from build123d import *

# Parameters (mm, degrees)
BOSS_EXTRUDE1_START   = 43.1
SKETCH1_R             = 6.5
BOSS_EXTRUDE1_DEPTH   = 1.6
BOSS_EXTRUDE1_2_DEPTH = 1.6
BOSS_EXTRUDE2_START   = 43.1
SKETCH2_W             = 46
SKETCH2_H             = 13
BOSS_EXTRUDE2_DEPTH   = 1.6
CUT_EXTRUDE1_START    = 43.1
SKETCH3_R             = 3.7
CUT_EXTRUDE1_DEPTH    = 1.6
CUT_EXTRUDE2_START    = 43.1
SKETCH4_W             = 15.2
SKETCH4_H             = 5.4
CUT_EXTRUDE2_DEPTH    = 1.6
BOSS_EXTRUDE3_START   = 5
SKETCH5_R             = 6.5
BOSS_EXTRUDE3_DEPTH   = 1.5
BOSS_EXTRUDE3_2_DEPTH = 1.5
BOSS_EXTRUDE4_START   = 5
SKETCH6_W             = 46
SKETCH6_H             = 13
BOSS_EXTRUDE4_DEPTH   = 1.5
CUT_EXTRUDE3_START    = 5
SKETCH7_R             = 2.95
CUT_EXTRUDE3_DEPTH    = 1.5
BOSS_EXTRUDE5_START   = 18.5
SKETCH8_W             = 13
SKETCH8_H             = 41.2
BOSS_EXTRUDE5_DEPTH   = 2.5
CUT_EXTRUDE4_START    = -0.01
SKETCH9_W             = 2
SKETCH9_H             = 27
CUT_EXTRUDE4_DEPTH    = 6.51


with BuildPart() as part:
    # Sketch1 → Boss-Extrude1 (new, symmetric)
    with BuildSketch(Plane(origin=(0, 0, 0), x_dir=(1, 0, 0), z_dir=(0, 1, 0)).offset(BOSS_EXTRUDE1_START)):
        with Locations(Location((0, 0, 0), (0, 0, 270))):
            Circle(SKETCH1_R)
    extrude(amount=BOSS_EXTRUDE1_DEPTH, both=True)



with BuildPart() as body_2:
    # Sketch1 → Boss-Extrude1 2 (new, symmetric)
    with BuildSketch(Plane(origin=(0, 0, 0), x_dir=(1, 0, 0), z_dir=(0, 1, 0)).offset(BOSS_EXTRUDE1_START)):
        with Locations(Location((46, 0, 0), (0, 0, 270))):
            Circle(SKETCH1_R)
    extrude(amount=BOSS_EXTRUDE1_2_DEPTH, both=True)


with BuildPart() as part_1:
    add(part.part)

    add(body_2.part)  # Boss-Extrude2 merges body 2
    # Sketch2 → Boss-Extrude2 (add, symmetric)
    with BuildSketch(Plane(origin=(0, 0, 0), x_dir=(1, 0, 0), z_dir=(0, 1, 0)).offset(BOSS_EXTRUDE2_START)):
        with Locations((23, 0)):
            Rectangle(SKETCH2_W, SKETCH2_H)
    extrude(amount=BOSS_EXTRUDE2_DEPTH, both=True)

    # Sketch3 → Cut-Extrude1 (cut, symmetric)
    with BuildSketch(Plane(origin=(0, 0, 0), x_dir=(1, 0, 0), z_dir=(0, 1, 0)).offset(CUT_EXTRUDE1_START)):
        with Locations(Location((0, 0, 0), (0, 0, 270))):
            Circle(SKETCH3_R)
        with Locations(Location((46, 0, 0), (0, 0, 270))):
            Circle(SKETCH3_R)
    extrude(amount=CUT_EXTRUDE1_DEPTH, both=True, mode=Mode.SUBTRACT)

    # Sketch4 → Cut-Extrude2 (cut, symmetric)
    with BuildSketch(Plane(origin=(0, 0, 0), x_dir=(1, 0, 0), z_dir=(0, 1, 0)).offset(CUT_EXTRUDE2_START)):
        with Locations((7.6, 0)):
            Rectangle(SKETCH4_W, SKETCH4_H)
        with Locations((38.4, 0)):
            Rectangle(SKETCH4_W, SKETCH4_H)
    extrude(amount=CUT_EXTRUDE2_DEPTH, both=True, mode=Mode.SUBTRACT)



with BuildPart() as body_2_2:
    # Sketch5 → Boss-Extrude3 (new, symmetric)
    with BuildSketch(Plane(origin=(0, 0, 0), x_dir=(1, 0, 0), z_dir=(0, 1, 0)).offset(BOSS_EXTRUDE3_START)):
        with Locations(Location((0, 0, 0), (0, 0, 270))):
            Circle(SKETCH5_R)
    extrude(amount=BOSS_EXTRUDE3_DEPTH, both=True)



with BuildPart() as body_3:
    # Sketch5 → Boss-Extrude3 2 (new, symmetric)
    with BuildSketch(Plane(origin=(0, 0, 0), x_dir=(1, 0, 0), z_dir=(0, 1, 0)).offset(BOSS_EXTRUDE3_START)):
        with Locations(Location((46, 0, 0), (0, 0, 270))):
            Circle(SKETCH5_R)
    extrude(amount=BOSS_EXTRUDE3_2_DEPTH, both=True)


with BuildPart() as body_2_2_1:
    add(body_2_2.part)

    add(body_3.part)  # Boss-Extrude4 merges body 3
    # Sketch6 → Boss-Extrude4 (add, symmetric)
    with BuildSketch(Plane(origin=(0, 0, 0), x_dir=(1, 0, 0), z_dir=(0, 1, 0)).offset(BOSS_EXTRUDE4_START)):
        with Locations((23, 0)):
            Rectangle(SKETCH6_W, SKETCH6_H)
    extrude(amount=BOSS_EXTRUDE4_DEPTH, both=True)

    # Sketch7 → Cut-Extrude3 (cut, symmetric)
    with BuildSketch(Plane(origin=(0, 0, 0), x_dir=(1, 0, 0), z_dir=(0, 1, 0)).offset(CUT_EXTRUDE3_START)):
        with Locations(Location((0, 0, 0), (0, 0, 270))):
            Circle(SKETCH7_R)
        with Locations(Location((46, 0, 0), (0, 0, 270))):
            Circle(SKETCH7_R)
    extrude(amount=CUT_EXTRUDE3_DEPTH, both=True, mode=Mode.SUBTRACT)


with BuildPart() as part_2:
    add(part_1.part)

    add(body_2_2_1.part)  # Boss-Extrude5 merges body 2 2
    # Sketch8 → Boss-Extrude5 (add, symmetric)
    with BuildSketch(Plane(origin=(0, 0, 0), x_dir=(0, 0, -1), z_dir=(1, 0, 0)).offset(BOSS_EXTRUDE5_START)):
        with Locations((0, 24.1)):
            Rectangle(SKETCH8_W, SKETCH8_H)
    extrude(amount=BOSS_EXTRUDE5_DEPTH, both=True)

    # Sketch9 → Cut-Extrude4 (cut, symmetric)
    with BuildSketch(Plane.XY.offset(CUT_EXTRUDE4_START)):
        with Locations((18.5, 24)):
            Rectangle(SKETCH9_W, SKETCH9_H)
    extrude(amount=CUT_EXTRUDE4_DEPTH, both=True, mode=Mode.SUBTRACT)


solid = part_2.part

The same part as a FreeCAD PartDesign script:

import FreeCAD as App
import Part
import Sketcher

V = App.Vector
Q = App.Units.Quantity

doc = App.newDocument("Part")
body = doc.addObject("PartDesign::Body", "Body")

sketch1 = body.newObject("Sketcher::SketchObject", "Sketch")
sketch1.AttachmentSupport = (doc.getObject("XZ_Plane"), [""])
sketch1.MapMode = "FlatFace"
sketch1.AttachmentOffset = App.Placement(V(0, 0, -43.1), App.Rotation())
sketch1.addGeometry(Part.Circle(V(0, 0, 0), V(0, 0, 1), 6), False)
sketch1.addConstraint(Sketcher.Constraint("Coincident", 0, 3, -1, 1))
sketch1.addConstraint(Sketcher.Constraint("Diameter", 0, Q("13 mm")))
pad1 = body.newObject("PartDesign::Pad", "Pad")
pad1.Profile = sketch1
pad1.Length = 3.2
pad1.Midplane = True
body2 = doc.addObject("PartDesign::Body", "Body001")

sketch2 = body2.newObject("Sketcher::SketchObject", "Sketch001")
sketch2.AttachmentSupport = (doc.getObject("XZ_Plane001"), [""])
sketch2.MapMode = "FlatFace"
sketch2.AttachmentOffset = App.Placement(V(0, 0, -43.1), App.Rotation())
sketch2.addGeometry(Part.Circle(V(46, 0, 0), V(0, 0, 1), 6), False)
sketch2.addConstraint(Sketcher.Constraint("PointOnObject", 0, 3, -1))
sketch2.addConstraint(Sketcher.Constraint("Diameter", 0, Q("13 mm")))
sketch2.addConstraint(Sketcher.Constraint("DistanceX", -1, 1, 0, 3, Q("46 mm")))
pad2 = body2.newObject("PartDesign::Pad", "Pad001")
pad2.Profile = sketch2
pad2.Length = 3.2
pad2.Midplane = True
body.AllowCompound = True
doc.recompute()

boolean = body.newObject("PartDesign::Boolean", "Boolean")
boolean.Type = "Fuse"
boolean.addObjects([body2])

sketch3 = body.newObject("Sketcher::SketchObject", "Sketch002")
sketch3.AttachmentSupport = (doc.getObject("XZ_Plane"), [""])
sketch3.MapMode = "FlatFace"
sketch3.AttachmentOffset = App.Placement(V(0, 0, -43.1), App.Rotation())
sketch3.addGeometry(Part.LineSegment(V(0, -6, 0), V(0, 6, 0)), False)
sketch3.addGeometry(Part.LineSegment(V(0, 6, 0), V(46, 6, 0)), False)
sketch3.addGeometry(Part.LineSegment(V(46, 6, 0), V(46, -6, 0)), False)
sketch3.addGeometry(Part.LineSegment(V(46, -6, 0), V(0, -6, 0)), False)
sketch3.addConstraint(Sketcher.Constraint("Coincident", 0, 2, 1, 1))
sketch3.addConstraint(Sketcher.Constraint("Coincident", 1, 2, 2, 1))
sketch3.addConstraint(Sketcher.Constraint("Coincident", 2, 2, 3, 1))
sketch3.addConstraint(Sketcher.Constraint("Coincident", 3, 2, 0, 1))
sketch3.addConstraint(Sketcher.Constraint("Vertical", 0))
sketch3.addConstraint(Sketcher.Constraint("Horizontal", 1))
sketch3.addConstraint(Sketcher.Constraint("Vertical", 2))
sketch3.addConstraint(Sketcher.Constraint("Horizontal", 3))
sketch3.addConstraint(Sketcher.Constraint("Symmetric", 0, 2, 3, 2, -1, 1))
sketch3.addConstraint(Sketcher.Constraint("DistanceX", 1, 1, 1, 2, Q("46 mm")))
sketch3.addConstraint(Sketcher.Constraint("DistanceY", 0, 1, 0, 2, Q("13 mm")))
pad3 = body.newObject("PartDesign::Pad", "Pad002")
pad3.Profile = sketch3
pad3.Length = 3.2
pad3.Midplane = True

sketch4 = body.newObject("Sketcher::SketchObject", "Sketch003")
sketch4.AttachmentSupport = (doc.getObject("XZ_Plane"), [""])
sketch4.MapMode = "FlatFace"
sketch4.AttachmentOffset = App.Placement(V(0, 0, -43.1), App.Rotation())
sketch4.addGeometry(Part.Circle(V(0, 0, 0), V(0, 0, 1), 3.7), False)
sketch4.addGeometry(Part.Circle(V(46, 0, 0), V(0, 0, 1), 3.7), False)
sketch4.addConstraint(Sketcher.Constraint("Coincident", 0, 3, -1, 1))
sketch4.addConstraint(Sketcher.Constraint("Equal", 0, 1))
sketch4.addConstraint(Sketcher.Constraint("PointOnObject", 1, 3, -1))
sketch4.addConstraint(Sketcher.Constraint("Diameter", 0, Q("7.4 mm")))
sketch4.addConstraint(Sketcher.Constraint("DistanceX", -1, 1, 1, 3, Q("46 mm")))
pocket1 = body.newObject("PartDesign::Pocket", "Pocket")
pocket1.Profile = sketch4
pocket1.Length = 3.2
pocket1.Midplane = True

sketch5 = body.newObject("Sketcher::SketchObject", "Sketch004")
sketch5.AttachmentSupport = (doc.getObject("XZ_Plane"), [""])
sketch5.MapMode = "FlatFace"
sketch5.AttachmentOffset = App.Placement(V(0, 0, -43.1), App.Rotation())
sketch5.addGeometry(Part.LineSegment(V(0, -3, 0), V(0, 3, 0)), False)
sketch5.addGeometry(Part.LineSegment(V(0, 3, 0), V(15, 3, 0)), False)
sketch5.addGeometry(Part.LineSegment(V(15, 3, 0), V(15, -3, 0)), False)
sketch5.addGeometry(Part.LineSegment(V(15, -3, 0), V(0, -3, 0)), False)
sketch5.addGeometry(Part.LineSegment(V(31, -3, 0), V(31, 3, 0)), False)
sketch5.addGeometry(Part.LineSegment(V(31, 3, 0), V(46, 3, 0)), False)
sketch5.addGeometry(Part.LineSegment(V(46, 3, 0), V(46, -3, 0)), False)
sketch5.addGeometry(Part.LineSegment(V(46, -3, 0), V(31, -3, 0)), False)
sketch5.addConstraint(Sketcher.Constraint("Coincident", 0, 2, 1, 1))
sketch5.addConstraint(Sketcher.Constraint("Coincident", 1, 2, 2, 1))
sketch5.addConstraint(Sketcher.Constraint("Coincident", 2, 2, 3, 1))
sketch5.addConstraint(Sketcher.Constraint("Coincident", 3, 2, 0, 1))
sketch5.addConstraint(Sketcher.Constraint("Coincident", 4, 2, 5, 1))
sketch5.addConstraint(Sketcher.Constraint("Coincident", 5, 2, 6, 1))
sketch5.addConstraint(Sketcher.Constraint("Coincident", 6, 2, 7, 1))
sketch5.addConstraint(Sketcher.Constraint("Coincident", 7, 2, 4, 1))
sketch5.addConstraint(Sketcher.Constraint("Vertical", 0))
sketch5.addConstraint(Sketcher.Constraint("Horizontal", 1))
sketch5.addConstraint(Sketcher.Constraint("Vertical", 2))
sketch5.addConstraint(Sketcher.Constraint("Horizontal", 3))
sketch5.addConstraint(Sketcher.Constraint("Vertical", 4))
sketch5.addConstraint(Sketcher.Constraint("Horizontal", 5))
sketch5.addConstraint(Sketcher.Constraint("Vertical", 6))
sketch5.addConstraint(Sketcher.Constraint("Horizontal", 7))
sketch5.addConstraint(Sketcher.Constraint("Symmetric", 0, 2, 3, 2, -1, 1))
sketch5.addConstraint(Sketcher.Constraint("Horizontal", 1, 2, 4, 2))
sketch5.addConstraint(Sketcher.Constraint("Horizontal", 3, 2, 6, 2))
sketch5.addConstraint(Sketcher.Constraint("Equal", 3, 5))
sketch5.addConstraint(Sketcher.Constraint("DistanceX", 1, 1, 1, 2, Q("15.2 mm")))
sketch5.addConstraint(Sketcher.Constraint("DistanceY", 0, 1, 0, 2, Q("5.4 mm")))
sketch5.addConstraint(Sketcher.Constraint("DistanceX", -1, 1, 5, 2, Q("46 mm")))
pocket2 = body.newObject("PartDesign::Pocket", "Pocket001")
pocket2.Profile = sketch5
pocket2.Length = 3.2
pocket2.Midplane = True
body3 = doc.addObject("PartDesign::Body", "Body002")

sketch6 = body3.newObject("Sketcher::SketchObject", "Sketch005")
sketch6.AttachmentSupport = (doc.getObject("XZ_Plane002"), [""])
sketch6.MapMode = "FlatFace"
sketch6.AttachmentOffset = App.Placement(V(0, 0, -5), App.Rotation())
sketch6.addGeometry(Part.Circle(V(0, 0, 0), V(0, 0, 1), 6), False)
sketch6.addConstraint(Sketcher.Constraint("Coincident", 0, 3, -1, 1))
sketch6.addConstraint(Sketcher.Constraint("Diameter", 0, Q("13 mm")))
pad4 = body3.newObject("PartDesign::Pad", "Pad003")
pad4.Profile = sketch6
pad4.Length = 3
pad4.Midplane = True
body4 = doc.addObject("PartDesign::Body", "Body003")

sketch7 = body4.newObject("Sketcher::SketchObject", "Sketch006")
sketch7.AttachmentSupport = (doc.getObject("XZ_Plane003"), [""])
sketch7.MapMode = "FlatFace"
sketch7.AttachmentOffset = App.Placement(V(0, 0, -5), App.Rotation())
sketch7.addGeometry(Part.Circle(V(46, 0, 0), V(0, 0, 1), 6), False)
sketch7.addConstraint(Sketcher.Constraint("PointOnObject", 0, 3, -1))
sketch7.addConstraint(Sketcher.Constraint("Diameter", 0, Q("13 mm")))
sketch7.addConstraint(Sketcher.Constraint("DistanceX", -1, 1, 0, 3, Q("46 mm")))
pad5 = body4.newObject("PartDesign::Pad", "Pad004")
pad5.Profile = sketch7
pad5.Length = 3
pad5.Midplane = True
body3.AllowCompound = True
doc.recompute()

boolean2 = body3.newObject("PartDesign::Boolean", "Boolean001")
boolean2.Type = "Fuse"
boolean2.addObjects([body4])

sketch8 = body3.newObject("Sketcher::SketchObject", "Sketch007")
sketch8.AttachmentSupport = (doc.getObject("XZ_Plane002"), [""])
sketch8.MapMode = "FlatFace"
sketch8.AttachmentOffset = App.Placement(V(0, 0, -5), App.Rotation())
sketch8.addGeometry(Part.LineSegment(V(0, -6, 0), V(0, 6, 0)), False)
sketch8.addGeometry(Part.LineSegment(V(0, 6, 0), V(46, 6, 0)), False)
sketch8.addGeometry(Part.LineSegment(V(46, 6, 0), V(46, -6, 0)), False)
sketch8.addGeometry(Part.LineSegment(V(46, -6, 0), V(0, -6, 0)), False)
sketch8.addConstraint(Sketcher.Constraint("Coincident", 0, 2, 1, 1))
sketch8.addConstraint(Sketcher.Constraint("Coincident", 1, 2, 2, 1))
sketch8.addConstraint(Sketcher.Constraint("Coincident", 2, 2, 3, 1))
sketch8.addConstraint(Sketcher.Constraint("Coincident", 3, 2, 0, 1))
sketch8.addConstraint(Sketcher.Constraint("Vertical", 0))
sketch8.addConstraint(Sketcher.Constraint("Horizontal", 1))
sketch8.addConstraint(Sketcher.Constraint("Vertical", 2))
sketch8.addConstraint(Sketcher.Constraint("Horizontal", 3))
sketch8.addConstraint(Sketcher.Constraint("Symmetric", 0, 2, 3, 2, -1, 1))
sketch8.addConstraint(Sketcher.Constraint("DistanceX", 1, 1, 1, 2, Q("46 mm")))
sketch8.addConstraint(Sketcher.Constraint("DistanceY", 0, 1, 0, 2, Q("13 mm")))
pad6 = body3.newObject("PartDesign::Pad", "Pad005")
pad6.Profile = sketch8
pad6.Length = 3
pad6.Midplane = True

sketch9 = body3.newObject("Sketcher::SketchObject", "Sketch008")
sketch9.AttachmentSupport = (doc.getObject("XZ_Plane002"), [""])
sketch9.MapMode = "FlatFace"
sketch9.AttachmentOffset = App.Placement(V(0, 0, -5), App.Rotation())
sketch9.addGeometry(Part.Circle(V(0, 0, 0), V(0, 0, 1), 3), False)
sketch9.addGeometry(Part.Circle(V(46, 0, 0), V(0, 0, 1), 3), False)
sketch9.addConstraint(Sketcher.Constraint("Coincident", 0, 3, -1, 1))
sketch9.addConstraint(Sketcher.Constraint("Equal", 0, 1))
sketch9.addConstraint(Sketcher.Constraint("PointOnObject", 1, 3, -1))
sketch9.addConstraint(Sketcher.Constraint("Diameter", 0, Q("5.9 mm")))
sketch9.addConstraint(Sketcher.Constraint("DistanceX", -1, 1, 1, 3, Q("46 mm")))
pocket3 = body3.newObject("PartDesign::Pocket", "Pocket002")
pocket3.Profile = sketch9
pocket3.Length = 3
pocket3.Midplane = True
body.AllowCompound = True
doc.recompute()

boolean3 = body.newObject("PartDesign::Boolean", "Boolean002")
boolean3.Type = "Fuse"
boolean3.addObjects([body3])

sketch10 = body.newObject("Sketcher::SketchObject", "Sketch009")
sketch10.AttachmentSupport = (doc.getObject("YZ_Plane"), [""])
sketch10.MapMode = "FlatFace"
sketch10.AttachmentOffset = App.Placement(V(0, 0, 18.5), App.Rotation())
sketch10.addGeometry(Part.LineSegment(V(45, 6, 0), V(4, 6, 0)), False)
sketch10.addGeometry(Part.LineSegment(V(4, 6, 0), V(4, -6, 0)), False)
sketch10.addGeometry(Part.LineSegment(V(4, -6, 0), V(45, -6, 0)), False)
sketch10.addGeometry(Part.LineSegment(V(45, -6, 0), V(45, 6, 0)), False)
sketch10.addConstraint(Sketcher.Constraint("Coincident", 0, 2, 1, 1))
sketch10.addConstraint(Sketcher.Constraint("Coincident", 1, 2, 2, 1))
sketch10.addConstraint(Sketcher.Constraint("Coincident", 2, 2, 3, 1))
sketch10.addConstraint(Sketcher.Constraint("Coincident", 3, 2, 0, 1))
sketch10.addConstraint(Sketcher.Constraint("Horizontal", 0))
sketch10.addConstraint(Sketcher.Constraint("Vertical", 1))
sketch10.addConstraint(Sketcher.Constraint("Horizontal", 2))
sketch10.addConstraint(Sketcher.Constraint("Vertical", 3))
sketch10.addConstraint(Sketcher.Constraint("DistanceY", 1, 2, 1, 1, Q("13 mm")))
sketch10.addConstraint(Sketcher.Constraint("DistanceX", 0, 2, 0, 1, Q("41.2 mm")))
sketch10.addConstraint(Sketcher.Constraint("DistanceX", -1, 1, 0, 2, Q("3.5 mm")))
sketch10.addConstraint(Sketcher.Constraint("DistanceY", -1, 1, 0, 2, Q("6.5 mm")))
pad7 = body.newObject("PartDesign::Pad", "Pad006")
pad7.Profile = sketch10
pad7.Length = 5
pad7.Midplane = True

sketch11 = body.newObject("Sketcher::SketchObject", "Sketch010")
sketch11.AttachmentSupport = (doc.getObject("XY_Plane"), [""])
sketch11.MapMode = "FlatFace"
sketch11.AttachmentOffset = App.Placement(V(0, 0, -0.01), App.Rotation())
sketch11.addGeometry(Part.LineSegment(V(17.5, 37.5, 0), V(17.5, 10.5, 0)), False)
sketch11.addGeometry(Part.LineSegment(V(17.5, 10.5, 0), V(19.5, 10.5, 0)), False)
sketch11.addGeometry(Part.LineSegment(V(19.5, 10.5, 0), V(19.5, 37.5, 0)), False)
sketch11.addGeometry(Part.LineSegment(V(19.5, 37.5, 0), V(17.5, 37.5, 0)), False)
sketch11.addConstraint(Sketcher.Constraint("Coincident", 0, 2, 1, 1))
sketch11.addConstraint(Sketcher.Constraint("Coincident", 1, 2, 2, 1))
sketch11.addConstraint(Sketcher.Constraint("Coincident", 2, 2, 3, 1))
sketch11.addConstraint(Sketcher.Constraint("Coincident", 3, 2, 0, 1))
sketch11.addConstraint(Sketcher.Constraint("Vertical", 0))
sketch11.addConstraint(Sketcher.Constraint("Horizontal", 1))
sketch11.addConstraint(Sketcher.Constraint("Vertical", 2))
sketch11.addConstraint(Sketcher.Constraint("Horizontal", 3))
sketch11.addConstraint(Sketcher.Constraint("DistanceX", 1, 1, 1, 2, Q("2 mm")))
sketch11.addConstraint(Sketcher.Constraint("DistanceY", 0, 2, 0, 1, Q("27 mm")))
sketch11.addConstraint(Sketcher.Constraint("DistanceX", -1, 1, 0, 2, Q("17.5 mm")))
sketch11.addConstraint(Sketcher.Constraint("DistanceY", -1, 1, 0, 2, Q("10.5 mm")))
pocket4 = body.newObject("PartDesign::Pocket", "Pocket003")
pocket4.Profile = sketch11
pocket4.Length = 13.02
pocket4.Midplane = True

doc.recompute()
